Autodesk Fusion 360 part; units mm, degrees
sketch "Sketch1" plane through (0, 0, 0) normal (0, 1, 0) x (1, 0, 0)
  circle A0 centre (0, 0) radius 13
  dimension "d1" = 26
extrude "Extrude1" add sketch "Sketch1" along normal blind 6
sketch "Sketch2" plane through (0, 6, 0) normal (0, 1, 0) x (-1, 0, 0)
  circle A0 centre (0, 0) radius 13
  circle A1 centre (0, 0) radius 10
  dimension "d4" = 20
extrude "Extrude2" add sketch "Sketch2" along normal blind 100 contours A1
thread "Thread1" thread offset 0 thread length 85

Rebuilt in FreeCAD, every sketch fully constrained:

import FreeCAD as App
import Part
import Sketcher
from FreeCAD import Vector

doc = App.newDocument("Part")
params = doc.addObject("Spreadsheet::Sheet", "Params")
for row, (alias, value) in enumerate([
    ("sketch1_diameter", "26 mm"),
    ("pad1_length", "6 mm"),
    ("sketch2_diameter", "20 mm"),
    ("pad2_length", "100 mm"),
], start=1):
    params.set(f"A{row}", alias)
    params.set(f"B{row}", "=" + value)
    params.setAlias(f"B{row}", alias)

body = doc.addObject("PartDesign::Body", "Body")

# Sketch on XZ plane
sketch1 = body.newObject("Sketcher::SketchObject", "Sketch")
sketch1.AttachmentSupport = (doc.getObject("XZ_Plane"), [""])
sketch1.MapMode = "FlatFace"
sketch1.addGeometry(Part.Circle(Vector(0, 0, 0), Vector(0, 0, 1), 13), False)
sketch1.addConstraint([
    Sketcher.Constraint("Coincident", 0, 3, -1, 1),
    Sketcher.Constraint("Diameter", 0, 26.0),
])
sketch1.setExpression("Constraints[1]", "Params.sketch1_diameter")
pad1 = body.newObject("PartDesign::Pad", "Pad")
pad1.Profile = sketch1
pad1.setExpression("Length", "Params.pad1_length")
pad1.Reversed = True

# Sketch on XZ plane
sketch2 = body.newObject("Sketcher::SketchObject", "Sketch001")
sketch2.AttachmentSupport = (doc.getObject("XZ_Plane"), [""])
sketch2.MapMode = "FlatFace"
sketch2.AttachmentOffset = App.Placement(Vector(0, 0, -6), App.Rotation())
sketch2.addGeometry(Part.Circle(Vector(0, 0, 0), Vector(0, 0, 1), 10), False)
sketch2.addConstraint([
    Sketcher.Constraint("Coincident", 0, 3, -1, 1),
    Sketcher.Constraint("Diameter", 0, 20.0),
])
sketch2.setExpression("Constraints[1]", "Params.sketch2_diameter")
pad2 = body.newObject("PartDesign::Pad", "Pad001")
pad2.Profile = sketch2
pad2.setExpression("Length", "Params.pad2_length")
pad2.Reversed = True

doc.recompute()
